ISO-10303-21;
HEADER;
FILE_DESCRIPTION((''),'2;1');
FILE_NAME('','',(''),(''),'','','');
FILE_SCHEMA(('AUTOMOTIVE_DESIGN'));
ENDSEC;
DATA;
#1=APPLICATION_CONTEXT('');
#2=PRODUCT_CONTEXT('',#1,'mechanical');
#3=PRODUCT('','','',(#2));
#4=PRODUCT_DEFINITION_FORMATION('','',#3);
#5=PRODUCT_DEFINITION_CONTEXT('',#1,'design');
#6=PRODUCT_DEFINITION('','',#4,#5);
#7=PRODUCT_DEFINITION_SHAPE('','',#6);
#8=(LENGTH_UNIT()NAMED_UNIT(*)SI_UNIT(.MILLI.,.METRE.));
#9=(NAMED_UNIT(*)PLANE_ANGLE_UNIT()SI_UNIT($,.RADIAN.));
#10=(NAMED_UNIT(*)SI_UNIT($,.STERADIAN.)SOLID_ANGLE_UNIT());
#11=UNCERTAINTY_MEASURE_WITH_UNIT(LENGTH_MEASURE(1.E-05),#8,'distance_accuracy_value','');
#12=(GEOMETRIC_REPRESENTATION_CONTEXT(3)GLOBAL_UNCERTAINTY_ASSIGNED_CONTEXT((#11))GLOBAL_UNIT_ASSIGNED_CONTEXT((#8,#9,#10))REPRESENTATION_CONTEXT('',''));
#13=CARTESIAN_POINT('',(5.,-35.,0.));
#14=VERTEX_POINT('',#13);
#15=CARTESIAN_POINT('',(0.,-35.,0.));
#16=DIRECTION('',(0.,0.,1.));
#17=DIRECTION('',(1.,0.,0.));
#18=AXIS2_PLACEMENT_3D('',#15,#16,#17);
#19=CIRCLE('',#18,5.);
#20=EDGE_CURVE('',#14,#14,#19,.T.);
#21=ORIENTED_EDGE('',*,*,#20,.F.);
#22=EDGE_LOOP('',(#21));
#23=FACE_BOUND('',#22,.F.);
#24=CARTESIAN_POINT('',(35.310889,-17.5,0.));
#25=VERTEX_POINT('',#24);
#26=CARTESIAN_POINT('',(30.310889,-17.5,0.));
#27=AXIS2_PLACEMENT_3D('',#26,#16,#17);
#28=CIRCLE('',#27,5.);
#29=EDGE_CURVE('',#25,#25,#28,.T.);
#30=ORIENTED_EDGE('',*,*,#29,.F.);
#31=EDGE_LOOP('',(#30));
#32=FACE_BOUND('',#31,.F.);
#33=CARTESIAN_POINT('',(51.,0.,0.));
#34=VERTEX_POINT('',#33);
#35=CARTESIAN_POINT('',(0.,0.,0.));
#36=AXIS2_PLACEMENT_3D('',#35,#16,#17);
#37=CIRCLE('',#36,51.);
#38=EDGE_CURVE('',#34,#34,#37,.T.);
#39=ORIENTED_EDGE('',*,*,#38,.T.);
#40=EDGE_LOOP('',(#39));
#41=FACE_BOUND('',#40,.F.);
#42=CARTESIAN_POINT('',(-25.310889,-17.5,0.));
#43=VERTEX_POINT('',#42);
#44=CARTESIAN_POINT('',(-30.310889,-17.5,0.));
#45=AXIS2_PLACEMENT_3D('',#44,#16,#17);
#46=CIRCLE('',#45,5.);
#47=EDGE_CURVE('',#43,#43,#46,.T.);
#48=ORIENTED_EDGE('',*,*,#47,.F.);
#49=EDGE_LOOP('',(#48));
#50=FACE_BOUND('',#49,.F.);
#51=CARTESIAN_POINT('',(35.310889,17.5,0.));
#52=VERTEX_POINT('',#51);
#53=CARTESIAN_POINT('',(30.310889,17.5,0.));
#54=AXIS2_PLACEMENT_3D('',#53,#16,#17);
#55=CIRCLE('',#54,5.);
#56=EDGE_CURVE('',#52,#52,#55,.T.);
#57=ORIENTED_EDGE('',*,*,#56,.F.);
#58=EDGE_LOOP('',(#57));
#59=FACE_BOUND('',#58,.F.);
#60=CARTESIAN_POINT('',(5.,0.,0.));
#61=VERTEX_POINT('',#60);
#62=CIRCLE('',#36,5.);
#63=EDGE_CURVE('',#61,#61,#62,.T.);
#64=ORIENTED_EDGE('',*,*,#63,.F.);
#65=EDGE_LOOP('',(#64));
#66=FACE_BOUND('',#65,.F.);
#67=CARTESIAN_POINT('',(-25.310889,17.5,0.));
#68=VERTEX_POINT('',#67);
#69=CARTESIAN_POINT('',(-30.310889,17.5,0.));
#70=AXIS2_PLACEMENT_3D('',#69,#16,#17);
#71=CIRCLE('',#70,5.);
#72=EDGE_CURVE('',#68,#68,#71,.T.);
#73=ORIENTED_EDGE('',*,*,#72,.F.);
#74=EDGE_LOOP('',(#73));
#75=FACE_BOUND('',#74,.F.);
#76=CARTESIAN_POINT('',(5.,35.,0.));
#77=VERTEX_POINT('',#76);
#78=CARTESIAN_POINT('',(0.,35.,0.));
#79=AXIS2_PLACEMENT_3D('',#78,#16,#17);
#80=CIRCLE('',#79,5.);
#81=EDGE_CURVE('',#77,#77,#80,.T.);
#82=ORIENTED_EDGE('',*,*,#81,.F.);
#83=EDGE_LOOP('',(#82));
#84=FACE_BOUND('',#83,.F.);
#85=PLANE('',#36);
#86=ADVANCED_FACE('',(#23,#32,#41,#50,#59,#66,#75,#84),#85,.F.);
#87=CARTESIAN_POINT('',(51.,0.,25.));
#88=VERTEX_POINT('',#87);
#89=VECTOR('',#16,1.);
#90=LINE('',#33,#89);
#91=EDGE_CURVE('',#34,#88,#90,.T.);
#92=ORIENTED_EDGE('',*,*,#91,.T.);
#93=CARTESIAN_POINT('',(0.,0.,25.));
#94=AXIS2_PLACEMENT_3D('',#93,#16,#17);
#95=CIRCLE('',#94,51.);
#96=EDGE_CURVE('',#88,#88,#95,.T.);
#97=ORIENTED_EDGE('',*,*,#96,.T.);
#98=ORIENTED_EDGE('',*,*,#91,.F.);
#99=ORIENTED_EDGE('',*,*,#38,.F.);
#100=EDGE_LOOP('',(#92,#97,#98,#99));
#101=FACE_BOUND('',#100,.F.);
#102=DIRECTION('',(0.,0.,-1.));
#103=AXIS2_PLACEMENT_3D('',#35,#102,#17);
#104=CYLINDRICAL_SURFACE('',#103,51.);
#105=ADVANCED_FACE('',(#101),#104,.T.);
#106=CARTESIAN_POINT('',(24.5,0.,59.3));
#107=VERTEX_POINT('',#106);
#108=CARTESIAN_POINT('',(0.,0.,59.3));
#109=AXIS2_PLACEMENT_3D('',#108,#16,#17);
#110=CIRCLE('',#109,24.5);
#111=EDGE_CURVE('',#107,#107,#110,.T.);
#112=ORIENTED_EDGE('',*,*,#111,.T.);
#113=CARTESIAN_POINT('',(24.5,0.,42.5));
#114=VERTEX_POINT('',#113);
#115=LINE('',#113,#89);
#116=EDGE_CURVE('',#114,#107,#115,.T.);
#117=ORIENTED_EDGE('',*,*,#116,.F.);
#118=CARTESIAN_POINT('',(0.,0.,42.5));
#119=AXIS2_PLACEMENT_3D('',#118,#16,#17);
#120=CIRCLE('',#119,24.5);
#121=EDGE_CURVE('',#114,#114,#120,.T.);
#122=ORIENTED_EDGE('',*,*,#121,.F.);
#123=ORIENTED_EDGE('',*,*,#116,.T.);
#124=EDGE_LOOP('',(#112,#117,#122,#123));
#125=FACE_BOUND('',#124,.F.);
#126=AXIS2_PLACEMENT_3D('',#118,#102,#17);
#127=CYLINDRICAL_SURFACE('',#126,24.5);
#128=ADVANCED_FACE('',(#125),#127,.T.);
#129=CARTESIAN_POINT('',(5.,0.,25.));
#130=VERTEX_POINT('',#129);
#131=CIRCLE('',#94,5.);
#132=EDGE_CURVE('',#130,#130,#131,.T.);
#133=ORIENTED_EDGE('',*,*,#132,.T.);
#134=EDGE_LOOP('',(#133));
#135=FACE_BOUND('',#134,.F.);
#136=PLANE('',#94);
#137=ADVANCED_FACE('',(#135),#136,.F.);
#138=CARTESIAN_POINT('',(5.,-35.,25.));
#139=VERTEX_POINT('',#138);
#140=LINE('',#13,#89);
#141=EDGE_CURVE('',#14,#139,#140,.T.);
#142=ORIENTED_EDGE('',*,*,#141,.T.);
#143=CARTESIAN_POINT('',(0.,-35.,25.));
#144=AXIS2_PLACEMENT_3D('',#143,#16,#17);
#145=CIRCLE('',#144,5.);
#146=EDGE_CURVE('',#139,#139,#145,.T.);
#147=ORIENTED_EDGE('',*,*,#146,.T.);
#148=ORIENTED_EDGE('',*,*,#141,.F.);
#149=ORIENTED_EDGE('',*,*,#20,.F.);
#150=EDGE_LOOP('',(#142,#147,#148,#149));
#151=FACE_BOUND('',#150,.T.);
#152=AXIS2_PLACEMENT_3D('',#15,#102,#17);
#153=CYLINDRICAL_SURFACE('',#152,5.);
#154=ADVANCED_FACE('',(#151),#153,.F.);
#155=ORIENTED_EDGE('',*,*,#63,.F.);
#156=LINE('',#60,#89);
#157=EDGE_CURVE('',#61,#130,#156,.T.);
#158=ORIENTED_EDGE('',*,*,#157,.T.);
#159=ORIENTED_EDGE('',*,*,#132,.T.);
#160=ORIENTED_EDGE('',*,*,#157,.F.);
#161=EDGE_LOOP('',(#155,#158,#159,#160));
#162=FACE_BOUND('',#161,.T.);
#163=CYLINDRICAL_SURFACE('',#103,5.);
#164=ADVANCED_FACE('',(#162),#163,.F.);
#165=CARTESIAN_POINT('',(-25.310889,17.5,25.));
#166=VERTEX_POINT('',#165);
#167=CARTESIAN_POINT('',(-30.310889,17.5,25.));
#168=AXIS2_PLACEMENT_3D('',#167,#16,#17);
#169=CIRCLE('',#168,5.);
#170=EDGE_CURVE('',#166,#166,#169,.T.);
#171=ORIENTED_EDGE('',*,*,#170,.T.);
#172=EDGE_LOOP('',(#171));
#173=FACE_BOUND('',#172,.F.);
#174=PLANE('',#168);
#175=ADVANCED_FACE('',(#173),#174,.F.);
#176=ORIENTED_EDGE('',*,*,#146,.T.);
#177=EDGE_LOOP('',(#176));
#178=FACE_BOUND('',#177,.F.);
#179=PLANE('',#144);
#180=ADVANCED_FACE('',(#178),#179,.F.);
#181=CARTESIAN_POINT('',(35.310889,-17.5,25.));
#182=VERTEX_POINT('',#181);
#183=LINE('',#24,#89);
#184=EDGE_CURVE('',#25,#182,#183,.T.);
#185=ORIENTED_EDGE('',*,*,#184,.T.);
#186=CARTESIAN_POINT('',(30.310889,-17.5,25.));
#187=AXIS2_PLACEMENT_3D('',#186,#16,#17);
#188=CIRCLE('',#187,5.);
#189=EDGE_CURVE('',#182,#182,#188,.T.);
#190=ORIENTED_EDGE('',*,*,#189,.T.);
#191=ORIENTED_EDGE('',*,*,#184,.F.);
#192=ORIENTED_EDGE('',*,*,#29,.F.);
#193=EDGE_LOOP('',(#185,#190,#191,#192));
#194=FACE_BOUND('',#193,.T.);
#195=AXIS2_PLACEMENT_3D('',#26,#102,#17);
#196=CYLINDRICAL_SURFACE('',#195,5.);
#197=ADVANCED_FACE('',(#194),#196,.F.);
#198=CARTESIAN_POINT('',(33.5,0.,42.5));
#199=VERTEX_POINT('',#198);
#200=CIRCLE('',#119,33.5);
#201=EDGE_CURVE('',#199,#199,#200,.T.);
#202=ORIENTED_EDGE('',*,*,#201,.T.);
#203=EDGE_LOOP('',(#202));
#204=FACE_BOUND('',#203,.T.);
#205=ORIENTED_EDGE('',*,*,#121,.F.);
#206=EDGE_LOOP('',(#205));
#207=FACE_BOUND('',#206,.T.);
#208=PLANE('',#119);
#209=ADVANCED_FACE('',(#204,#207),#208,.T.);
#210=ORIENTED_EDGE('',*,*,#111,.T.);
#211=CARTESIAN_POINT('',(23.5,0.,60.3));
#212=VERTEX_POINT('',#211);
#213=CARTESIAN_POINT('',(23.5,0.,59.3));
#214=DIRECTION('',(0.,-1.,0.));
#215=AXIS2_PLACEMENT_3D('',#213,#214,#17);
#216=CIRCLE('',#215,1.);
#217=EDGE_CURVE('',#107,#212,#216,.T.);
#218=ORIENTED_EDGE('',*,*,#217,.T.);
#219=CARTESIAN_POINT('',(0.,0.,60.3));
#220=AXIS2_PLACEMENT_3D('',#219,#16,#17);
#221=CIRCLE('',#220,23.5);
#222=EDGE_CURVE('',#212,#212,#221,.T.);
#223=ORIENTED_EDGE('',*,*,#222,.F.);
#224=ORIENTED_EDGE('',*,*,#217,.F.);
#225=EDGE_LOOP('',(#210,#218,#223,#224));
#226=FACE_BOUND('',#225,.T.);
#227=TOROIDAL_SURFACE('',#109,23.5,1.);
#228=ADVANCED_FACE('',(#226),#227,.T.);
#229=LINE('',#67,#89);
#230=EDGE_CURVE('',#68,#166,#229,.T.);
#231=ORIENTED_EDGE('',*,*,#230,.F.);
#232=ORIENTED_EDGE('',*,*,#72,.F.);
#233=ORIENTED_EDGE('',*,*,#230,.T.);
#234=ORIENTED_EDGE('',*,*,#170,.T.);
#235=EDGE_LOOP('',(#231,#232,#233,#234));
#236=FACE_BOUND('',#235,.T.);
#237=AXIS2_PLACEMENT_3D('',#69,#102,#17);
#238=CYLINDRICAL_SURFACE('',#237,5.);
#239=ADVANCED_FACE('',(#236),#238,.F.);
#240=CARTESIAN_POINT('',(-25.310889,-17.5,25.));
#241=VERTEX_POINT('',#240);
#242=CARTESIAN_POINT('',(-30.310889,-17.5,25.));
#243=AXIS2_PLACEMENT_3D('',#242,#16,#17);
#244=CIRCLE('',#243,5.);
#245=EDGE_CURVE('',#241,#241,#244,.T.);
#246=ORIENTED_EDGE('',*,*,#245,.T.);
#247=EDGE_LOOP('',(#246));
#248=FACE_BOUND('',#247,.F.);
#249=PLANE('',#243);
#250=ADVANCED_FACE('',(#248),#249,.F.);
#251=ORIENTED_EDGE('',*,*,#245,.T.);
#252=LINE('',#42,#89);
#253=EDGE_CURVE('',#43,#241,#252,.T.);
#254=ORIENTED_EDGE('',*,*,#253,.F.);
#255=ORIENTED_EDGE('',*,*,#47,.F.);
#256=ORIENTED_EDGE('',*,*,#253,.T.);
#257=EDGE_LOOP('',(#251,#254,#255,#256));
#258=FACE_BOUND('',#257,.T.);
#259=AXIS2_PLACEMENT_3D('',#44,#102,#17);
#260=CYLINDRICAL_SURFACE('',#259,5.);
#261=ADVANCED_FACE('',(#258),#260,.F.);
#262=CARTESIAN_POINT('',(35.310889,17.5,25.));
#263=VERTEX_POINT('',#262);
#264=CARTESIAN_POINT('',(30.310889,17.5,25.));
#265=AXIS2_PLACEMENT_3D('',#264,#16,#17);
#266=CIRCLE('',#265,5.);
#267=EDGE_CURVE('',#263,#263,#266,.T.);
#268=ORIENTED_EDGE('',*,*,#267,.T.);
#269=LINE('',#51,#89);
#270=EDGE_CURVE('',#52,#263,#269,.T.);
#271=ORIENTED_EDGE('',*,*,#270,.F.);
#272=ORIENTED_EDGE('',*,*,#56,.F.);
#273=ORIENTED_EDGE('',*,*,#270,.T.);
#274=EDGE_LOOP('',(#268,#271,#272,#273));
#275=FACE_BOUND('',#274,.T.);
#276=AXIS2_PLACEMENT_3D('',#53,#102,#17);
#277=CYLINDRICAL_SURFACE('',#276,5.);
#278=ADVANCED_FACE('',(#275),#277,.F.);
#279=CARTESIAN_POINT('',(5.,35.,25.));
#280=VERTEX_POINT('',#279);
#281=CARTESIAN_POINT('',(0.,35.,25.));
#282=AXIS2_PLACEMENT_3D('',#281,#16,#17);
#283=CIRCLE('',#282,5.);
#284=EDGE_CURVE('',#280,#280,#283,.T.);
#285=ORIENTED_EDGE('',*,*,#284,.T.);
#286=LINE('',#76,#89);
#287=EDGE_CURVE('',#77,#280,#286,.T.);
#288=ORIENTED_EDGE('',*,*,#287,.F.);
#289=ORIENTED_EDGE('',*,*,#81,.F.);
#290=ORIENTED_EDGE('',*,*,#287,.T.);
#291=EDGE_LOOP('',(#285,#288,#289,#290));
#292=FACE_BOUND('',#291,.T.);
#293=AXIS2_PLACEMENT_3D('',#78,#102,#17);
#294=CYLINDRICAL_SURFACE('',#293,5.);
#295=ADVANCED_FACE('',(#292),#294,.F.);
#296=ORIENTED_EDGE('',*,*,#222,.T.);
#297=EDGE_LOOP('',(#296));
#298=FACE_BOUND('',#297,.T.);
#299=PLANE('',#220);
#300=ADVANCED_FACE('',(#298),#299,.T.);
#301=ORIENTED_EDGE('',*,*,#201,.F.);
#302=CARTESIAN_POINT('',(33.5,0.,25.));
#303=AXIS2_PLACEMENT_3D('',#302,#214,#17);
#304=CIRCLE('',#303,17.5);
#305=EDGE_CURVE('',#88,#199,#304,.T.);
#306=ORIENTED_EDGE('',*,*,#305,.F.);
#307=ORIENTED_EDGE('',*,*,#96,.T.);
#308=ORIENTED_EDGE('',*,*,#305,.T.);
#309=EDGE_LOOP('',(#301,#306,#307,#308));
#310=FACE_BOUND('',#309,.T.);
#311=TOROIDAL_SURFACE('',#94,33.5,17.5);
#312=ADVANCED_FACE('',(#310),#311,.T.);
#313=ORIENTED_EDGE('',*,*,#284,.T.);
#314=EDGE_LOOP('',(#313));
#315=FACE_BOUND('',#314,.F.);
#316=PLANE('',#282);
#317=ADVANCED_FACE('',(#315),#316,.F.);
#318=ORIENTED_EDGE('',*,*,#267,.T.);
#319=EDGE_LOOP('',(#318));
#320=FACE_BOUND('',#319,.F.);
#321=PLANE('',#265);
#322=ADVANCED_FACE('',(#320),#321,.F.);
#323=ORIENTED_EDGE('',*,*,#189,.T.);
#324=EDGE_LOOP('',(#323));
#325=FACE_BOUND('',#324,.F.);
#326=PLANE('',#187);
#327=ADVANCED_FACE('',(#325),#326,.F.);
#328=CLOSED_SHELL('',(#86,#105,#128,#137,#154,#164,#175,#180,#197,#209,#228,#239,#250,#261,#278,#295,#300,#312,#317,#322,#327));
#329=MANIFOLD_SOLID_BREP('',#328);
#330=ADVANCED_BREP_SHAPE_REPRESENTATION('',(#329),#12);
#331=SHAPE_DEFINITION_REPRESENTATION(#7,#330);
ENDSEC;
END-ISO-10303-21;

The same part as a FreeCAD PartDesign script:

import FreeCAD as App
import Part
import Sketcher


def edges_at(feature, points):
    """Names of the edges that pass closest to the given points."""
    edges = feature.Shape.Edges
    near = lambda p: min(range(len(edges)), key=lambda i: edges[i].distToShape(Part.Vertex(*p))[0])
    return sorted({f"Edge{near(p) + 1}" for p in points})

doc = App.newDocument("Part")
body = doc.addObject("PartDesign::Body", "Body")

# Sketch on XY plane
sketch1 = body.newObject("Sketcher::SketchObject", "Sketch")
sketch1.AttachmentSupport = (doc.getObject("XY_Plane"), [""])
sketch1.MapMode = "FlatFace"
sketch1.addGeometry(Part.Circle(App.Vector(0, 0, 0), App.Vector(0, 0, 1), 51), False)
sketch1.addConstraint([
    Sketcher.Constraint("Coincident", 0, 3, -1, 1),
    Sketcher.Constraint("Diameter", 0, 102.0),
])
pad1 = body.newObject("PartDesign::Pad", "Pad")
pad1.Profile = sketch1
pad1.Length = 42.5

# Sketch on XY plane
sketch2 = body.newObject("Sketcher::SketchObject", "Sketch001")
sketch2.AttachmentSupport = (doc.getObject("XY_Plane"), [""])
sketch2.MapMode = "FlatFace"
sketch2.addGeometry([
    Part.Circle(App.Vector(0, -35, 0), App.Vector(0, 0, 1), 5),  # 0
    Part.Circle(App.Vector(30.310889, -17.5, 0), App.Vector(0, 0, 1), 5),  # 1
    Part.Circle(App.Vector(30.310889, 17.5, 0), App.Vector(0, 0, 1), 5),  # 2
    Part.Circle(App.Vector(0, 35, 0), App.Vector(0, 0, 1), 5),  # 3
    Part.Circle(App.Vector(-30.310889, 17.5, 0), App.Vector(0, 0, 1), 5),  # 4
    Part.Circle(App.Vector(-30.310889, -17.5, 0), App.Vector(0, 0, 1), 5),  # 5
    Part.Circle(App.Vector(0, 0, 0), App.Vector(0, 0, 1), 5),  # 6
], False)
sketch2.addConstraint([
    Sketcher.Constraint("Coincident", 6, 3, -1, 1),
    Sketcher.Constraint("Equal", 0, 1),
    Sketcher.Constraint("Equal", 1, 2),
    Sketcher.Constraint("Equal", 2, 3),
    Sketcher.Constraint("Equal", 3, 4),
    Sketcher.Constraint("Equal", 4, 5),
    Sketcher.Constraint("Equal", 5, 6),
    Sketcher.Constraint("Symmetric", 0, 3, 3, 3, -1, 1),
    Sketcher.Constraint("Symmetric", 1, 3, 4, 3, -1, 1),
    Sketcher.Constraint("Symmetric", 2, 3, 5, 3, -1, 1),
    Sketcher.Constraint("Symmetric", 2, 3, 4, 3, -2),
    Sketcher.Constraint("PointOnObject", 0, 3, -2),
    Sketcher.Constraint("Diameter", 0, 10.0),
    Sketcher.Constraint("DistanceY", 0, 3, -1, 1, 35.0),
    Sketcher.Constraint("DistanceY", 1, 3, 2, 3, 35.0),
    Sketcher.Constraint("DistanceX", -1, 1, 1, 3, 30.310889),
])
pocket1 = body.newObject("PartDesign::Pocket", "Pocket")
pocket1.Profile = sketch2
pocket1.Length = 25
pocket1.Reversed = True
doc.recompute()

fillet = body.newObject("PartDesign::Fillet", "Fillet")
fillet.Base = (pocket1, edges_at(pocket1, [(-51, 0, 42.5)]))
fillet.Radius = 17.5

# Sketch on XY plane
sketch3 = body.newObject("Sketcher::SketchObject", "Sketch002")
sketch3.AttachmentSupport = (doc.getObject("XY_Plane"), [""])
sketch3.MapMode = "FlatFace"
sketch3.AttachmentOffset = App.Placement(App.Vector(0, 0, 42.5), App.Rotation())
sketch3.addGeometry(Part.Circle(App.Vector(0, 0, 0), App.Vector(0, 0, 1), 24.5), False)
sketch3.addConstraint([
    Sketcher.Constraint("Coincident", 0, 3, -1, 1),
    Sketcher.Constraint("Diameter", 0, 49.0),
])
pad2 = body.newObject("PartDesign::Pad", "Pad001")
pad2.Profile = sketch3
pad2.Length = 17.8
doc.recompute()

fillet2 = body.newObject("PartDesign::Fillet", "Fillet001")
fillet2.Base = (pad2, edges_at(pad2, [(-24.5, 0, 60.3)]))
fillet2.Radius = 1

doc.recompute()
